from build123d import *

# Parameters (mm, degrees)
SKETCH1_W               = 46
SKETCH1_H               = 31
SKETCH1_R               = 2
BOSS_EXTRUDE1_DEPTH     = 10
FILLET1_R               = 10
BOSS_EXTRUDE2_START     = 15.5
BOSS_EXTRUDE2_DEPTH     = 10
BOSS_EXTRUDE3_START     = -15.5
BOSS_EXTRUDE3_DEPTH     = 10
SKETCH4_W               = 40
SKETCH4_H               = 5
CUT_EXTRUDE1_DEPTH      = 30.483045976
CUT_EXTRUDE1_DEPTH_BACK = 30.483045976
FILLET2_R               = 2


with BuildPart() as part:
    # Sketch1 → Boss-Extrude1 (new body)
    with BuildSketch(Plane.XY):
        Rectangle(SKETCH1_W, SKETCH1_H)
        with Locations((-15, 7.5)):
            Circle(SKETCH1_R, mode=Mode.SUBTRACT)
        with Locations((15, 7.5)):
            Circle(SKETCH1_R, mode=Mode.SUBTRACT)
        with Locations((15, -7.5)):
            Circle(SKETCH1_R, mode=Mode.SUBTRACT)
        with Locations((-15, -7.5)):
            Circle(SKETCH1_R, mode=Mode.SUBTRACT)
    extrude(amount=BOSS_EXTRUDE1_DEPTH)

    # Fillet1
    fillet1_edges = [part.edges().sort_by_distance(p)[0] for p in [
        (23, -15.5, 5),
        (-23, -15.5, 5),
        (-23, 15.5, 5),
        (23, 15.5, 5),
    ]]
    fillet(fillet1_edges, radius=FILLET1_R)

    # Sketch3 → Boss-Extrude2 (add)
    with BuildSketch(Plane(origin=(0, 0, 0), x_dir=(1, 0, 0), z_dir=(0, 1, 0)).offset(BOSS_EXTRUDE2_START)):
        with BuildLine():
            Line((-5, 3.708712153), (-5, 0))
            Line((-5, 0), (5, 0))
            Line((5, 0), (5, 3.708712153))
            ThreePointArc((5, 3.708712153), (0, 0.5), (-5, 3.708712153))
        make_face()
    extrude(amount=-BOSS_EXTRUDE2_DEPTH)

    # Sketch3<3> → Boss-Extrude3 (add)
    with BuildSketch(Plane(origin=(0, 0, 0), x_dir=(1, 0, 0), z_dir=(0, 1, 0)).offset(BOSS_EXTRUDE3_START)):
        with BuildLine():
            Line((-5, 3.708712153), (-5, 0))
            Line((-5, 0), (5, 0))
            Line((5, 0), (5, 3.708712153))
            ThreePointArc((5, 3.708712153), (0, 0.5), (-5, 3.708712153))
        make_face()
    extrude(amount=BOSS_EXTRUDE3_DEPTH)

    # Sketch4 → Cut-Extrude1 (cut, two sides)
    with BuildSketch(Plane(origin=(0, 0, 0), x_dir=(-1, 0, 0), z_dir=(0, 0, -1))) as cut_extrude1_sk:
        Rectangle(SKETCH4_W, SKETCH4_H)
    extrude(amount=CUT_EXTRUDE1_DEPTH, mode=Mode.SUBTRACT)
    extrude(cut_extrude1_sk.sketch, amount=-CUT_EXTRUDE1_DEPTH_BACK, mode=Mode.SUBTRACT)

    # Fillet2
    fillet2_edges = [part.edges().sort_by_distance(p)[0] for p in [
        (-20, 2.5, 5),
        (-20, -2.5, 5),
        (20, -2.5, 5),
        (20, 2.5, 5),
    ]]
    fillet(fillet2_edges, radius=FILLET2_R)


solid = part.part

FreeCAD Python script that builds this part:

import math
import FreeCAD as App
import Part
import Sketcher

V = App.Vector


def edges_at(feature, points):
    """Names of the edges that pass closest to the given points."""
    edges = feature.Shape.Edges
    near = lambda p: min(range(len(edges)), key=lambda i: edges[i].distToShape(Part.Vertex(*p))[0])
    return sorted({f"Edge{near(p) + 1}" for p in points})


def add_polygon(sketch, points):
    """Adds a closed chain of lines whose ends are joined by coincident constraints."""
    first, n = sketch.GeometryCount, len(points)
    for a, b in zip(points, points[1:] + points[:1]):
        sketch.addGeometry(Part.LineSegment(App.Vector(*a, 0), App.Vector(*b, 0)), False)
    for i in range(n):
        sketch.addConstraint(Sketcher.Constraint("Coincident", first + i, 2, first + (i + 1) % n, 1))

doc = App.newDocument("Part")
body = doc.addObject("PartDesign::Body", "Body")

sketch1 = body.newObject("Sketcher::SketchObject", "Sketch")
sketch1.AttachmentSupport = (doc.getObject("XY_Plane"), [""])
sketch1.MapMode = "FlatFace"
add_polygon(sketch1, [(-23, 15.5), (-23, -15.5), (23, -15.5), (23, 15.5)])
sketch1.addGeometry(Part.Circle(V(-15, -7.5, 0), V(0, 0, 1), 2), False)
sketch1.addGeometry(Part.Circle(V(15, -7.5, 0), V(0, 0, 1), 2), False)
sketch1.addGeometry(Part.Circle(V(-15, 7.5, 0), V(0, 0, 1), 2), False)
sketch1.addGeometry(Part.Circle(V(15, 7.5, 0), V(0, 0, 1), 2), False)
sketch1.addConstraint([
    Sketcher.Constraint("Vertical", 0),
    Sketcher.Constraint("Horizontal", 1),
    Sketcher.Constraint("Vertical", 2),
    Sketcher.Constraint("Horizontal", 3),
    Sketcher.Constraint("Equal", 4, 5),
    Sketcher.Constraint("Equal", 5, 6),
    Sketcher.Constraint("Equal", 6, 7),
    Sketcher.Constraint("Symmetric", 5, 3, 6, 3, -1, 1),
    Sketcher.Constraint("Symmetric", 4, 3, 7, 3, -1, 1),
    Sketcher.Constraint("Symmetric", 0, 2, 2, 2, -1, 1),
    Sketcher.Constraint("Symmetric", 4, 3, 5, 3, -2),
    Sketcher.Constraint("Diameter", 4, 4.0),
    Sketcher.Constraint("DistanceX", 1, 1, 1, 2, 46.0),
    Sketcher.Constraint("DistanceY", 0, 2, 0, 1, 31.0),
    Sketcher.Constraint("DistanceX", 4, 3, -1, 1, 15.0),
    Sketcher.Constraint("DistanceY", 4, 3, 6, 3, 15.0),
])
pad1 = body.newObject("PartDesign::Pad", "Pad")
pad1.Profile = sketch1
pad1.Length = 10
doc.recompute()

fillet = body.newObject("PartDesign::Fillet", "Fillet")
fillet.Base = (pad1, edges_at(pad1, [
    (23, -15.5, 5),
    (-23, -15.5, 5),
    (-23, 15.5, 5),
    (23, 15.5, 5),
]))
fillet.Radius = 10

sketch2 = body.newObject("Sketcher::SketchObject", "Sketch001")
sketch2.AttachmentSupport = (doc.getObject("XZ_Plane"), [""])
sketch2.MapMode = "FlatFace"
sketch2.AttachmentOffset = App.Placement(V(0, 0, -15.5), App.Rotation())
sketch2.addGeometry([
    Part.LineSegment(V(-5, -3.7, 0), V(-5, 0, 0)),
    Part.LineSegment(V(-5, 0, 0), V(5, 0, 0)),
    Part.LineSegment(V(5, 0, 0), V(5, -3.7, 0)),
    Part.ArcOfCircle(Part.Circle(V(0, -6, 0), V(0, 0, 1), 5.5), math.radians(25), math.radians(155)),
], False)
sketch2.addConstraint([
    Sketcher.Constraint("Coincident", 0, 2, 1, 1),
    Sketcher.Constraint("Coincident", 1, 2, 2, 1),
    Sketcher.Constraint("Coincident", 2, 2, 3, 1),
    Sketcher.Constraint("Coincident", 3, 2, 0, 1),
    Sketcher.Constraint("Vertical", 0),
    Sketcher.Constraint("Horizontal", 1),
    Sketcher.Constraint("Vertical", 2),
    Sketcher.Constraint("Symmetric", 0, 2, 1, 2, -1, 1),
    Sketcher.Constraint("PointOnObject", 3, 3, -2),
    Sketcher.Constraint("Radius", 3, 5.5),
    Sketcher.Constraint("DistanceX", 1, 1, 1, 2, 10.0),
    Sketcher.Constraint("DistanceY", 3, 3, -1, 1, 6.0),
])
pad2 = body.newObject("PartDesign::Pad", "Pad001")
pad2.Profile = sketch2
pad2.Length = 10

sketch3 = body.newObject("Sketcher::SketchObject", "Sketch002")
sketch3.AttachmentSupport = (doc.getObject("XZ_Plane"), [""])
sketch3.MapMode = "FlatFace"
sketch3.AttachmentOffset = App.Placement(V(0, 0, 15.5), App.Rotation())
sketch3.addGeometry([
    Part.LineSegment(V(-5, -3.7, 0), V(-5, 0, 0)),
    Part.LineSegment(V(-5, 0, 0), V(5, 0, 0)),
    Part.LineSegment(V(5, 0, 0), V(5, -3.7, 0)),
    Part.ArcOfCircle(Part.Circle(V(0, -6, 0), V(0, 0, 1), 5.5), math.radians(25), math.radians(155)),
], False)
sketch3.addConstraint([
    Sketcher.Constraint("Coincident", 0, 2, 1, 1),
    Sketcher.Constraint("Coincident", 1, 2, 2, 1),
    Sketcher.Constraint("Coincident", 2, 2, 3, 1),
    Sketcher.Constraint("Coincident", 3, 2, 0, 1),
    Sketcher.Constraint("Vertical", 0),
    Sketcher.Constraint("Horizontal", 1),
    Sketcher.Constraint("Vertical", 2),
    Sketcher.Constraint("Symmetric", 0, 2, 1, 2, -1, 1),
    Sketcher.Constraint("PointOnObject", 3, 3, -2),
    Sketcher.Constraint("Radius", 3, 5.5),
    Sketcher.Constraint("DistanceX", 1, 1, 1, 2, 10.0),
    Sketcher.Constraint("DistanceY", 3, 3, -1, 1, 6.0),
])
pad3 = body.newObject("PartDesign::Pad", "Pad002")
pad3.Profile = sketch3
pad3.Length = 10
pad3.Reversed = True

sketch4 = body.newObject("Sketcher::SketchObject", "Sketch003")
sketch4.AttachmentSupport = (doc.getObject("XY_Plane"), [""])
sketch4.MapMode = "FlatFace"
add_polygon(sketch4, [(20, 2), (20, -2), (-20, -2), (-20, 2)])
sketch4.addConstraint([
    Sketcher.Constraint("Vertical", 0),
    Sketcher.Constraint("Horizontal", 1),
    Sketcher.Constraint("Vertical", 2),
    Sketcher.Constraint("Horizontal", 3),
    Sketcher.Constraint("Symmetric", 0, 2, 2, 2, -1, 1),
    Sketcher.Constraint("DistanceX", 1, 2, 1, 1, 40.0),
    Sketcher.Constraint("DistanceY", 0, 2, 0, 1, 5.0),
])
pocket1 = body.newObject("PartDesign::Pocket", "Pocket")
pocket1.Profile = sketch4
pocket1.Type = "ThroughAll"
pocket1.Midplane = True
doc.recompute()

fillet2 = body.newObject("PartDesign::Fillet", "Fillet001")
fillet2.Base = (pocket1, edges_at(pocket1, [
    (-20, 2.5, 5),
    (-20, -2.5, 5),
    (20, -2.5, 5),
    (20, 2.5, 5),
]))
fillet2.Radius = 2

doc.recompute()
